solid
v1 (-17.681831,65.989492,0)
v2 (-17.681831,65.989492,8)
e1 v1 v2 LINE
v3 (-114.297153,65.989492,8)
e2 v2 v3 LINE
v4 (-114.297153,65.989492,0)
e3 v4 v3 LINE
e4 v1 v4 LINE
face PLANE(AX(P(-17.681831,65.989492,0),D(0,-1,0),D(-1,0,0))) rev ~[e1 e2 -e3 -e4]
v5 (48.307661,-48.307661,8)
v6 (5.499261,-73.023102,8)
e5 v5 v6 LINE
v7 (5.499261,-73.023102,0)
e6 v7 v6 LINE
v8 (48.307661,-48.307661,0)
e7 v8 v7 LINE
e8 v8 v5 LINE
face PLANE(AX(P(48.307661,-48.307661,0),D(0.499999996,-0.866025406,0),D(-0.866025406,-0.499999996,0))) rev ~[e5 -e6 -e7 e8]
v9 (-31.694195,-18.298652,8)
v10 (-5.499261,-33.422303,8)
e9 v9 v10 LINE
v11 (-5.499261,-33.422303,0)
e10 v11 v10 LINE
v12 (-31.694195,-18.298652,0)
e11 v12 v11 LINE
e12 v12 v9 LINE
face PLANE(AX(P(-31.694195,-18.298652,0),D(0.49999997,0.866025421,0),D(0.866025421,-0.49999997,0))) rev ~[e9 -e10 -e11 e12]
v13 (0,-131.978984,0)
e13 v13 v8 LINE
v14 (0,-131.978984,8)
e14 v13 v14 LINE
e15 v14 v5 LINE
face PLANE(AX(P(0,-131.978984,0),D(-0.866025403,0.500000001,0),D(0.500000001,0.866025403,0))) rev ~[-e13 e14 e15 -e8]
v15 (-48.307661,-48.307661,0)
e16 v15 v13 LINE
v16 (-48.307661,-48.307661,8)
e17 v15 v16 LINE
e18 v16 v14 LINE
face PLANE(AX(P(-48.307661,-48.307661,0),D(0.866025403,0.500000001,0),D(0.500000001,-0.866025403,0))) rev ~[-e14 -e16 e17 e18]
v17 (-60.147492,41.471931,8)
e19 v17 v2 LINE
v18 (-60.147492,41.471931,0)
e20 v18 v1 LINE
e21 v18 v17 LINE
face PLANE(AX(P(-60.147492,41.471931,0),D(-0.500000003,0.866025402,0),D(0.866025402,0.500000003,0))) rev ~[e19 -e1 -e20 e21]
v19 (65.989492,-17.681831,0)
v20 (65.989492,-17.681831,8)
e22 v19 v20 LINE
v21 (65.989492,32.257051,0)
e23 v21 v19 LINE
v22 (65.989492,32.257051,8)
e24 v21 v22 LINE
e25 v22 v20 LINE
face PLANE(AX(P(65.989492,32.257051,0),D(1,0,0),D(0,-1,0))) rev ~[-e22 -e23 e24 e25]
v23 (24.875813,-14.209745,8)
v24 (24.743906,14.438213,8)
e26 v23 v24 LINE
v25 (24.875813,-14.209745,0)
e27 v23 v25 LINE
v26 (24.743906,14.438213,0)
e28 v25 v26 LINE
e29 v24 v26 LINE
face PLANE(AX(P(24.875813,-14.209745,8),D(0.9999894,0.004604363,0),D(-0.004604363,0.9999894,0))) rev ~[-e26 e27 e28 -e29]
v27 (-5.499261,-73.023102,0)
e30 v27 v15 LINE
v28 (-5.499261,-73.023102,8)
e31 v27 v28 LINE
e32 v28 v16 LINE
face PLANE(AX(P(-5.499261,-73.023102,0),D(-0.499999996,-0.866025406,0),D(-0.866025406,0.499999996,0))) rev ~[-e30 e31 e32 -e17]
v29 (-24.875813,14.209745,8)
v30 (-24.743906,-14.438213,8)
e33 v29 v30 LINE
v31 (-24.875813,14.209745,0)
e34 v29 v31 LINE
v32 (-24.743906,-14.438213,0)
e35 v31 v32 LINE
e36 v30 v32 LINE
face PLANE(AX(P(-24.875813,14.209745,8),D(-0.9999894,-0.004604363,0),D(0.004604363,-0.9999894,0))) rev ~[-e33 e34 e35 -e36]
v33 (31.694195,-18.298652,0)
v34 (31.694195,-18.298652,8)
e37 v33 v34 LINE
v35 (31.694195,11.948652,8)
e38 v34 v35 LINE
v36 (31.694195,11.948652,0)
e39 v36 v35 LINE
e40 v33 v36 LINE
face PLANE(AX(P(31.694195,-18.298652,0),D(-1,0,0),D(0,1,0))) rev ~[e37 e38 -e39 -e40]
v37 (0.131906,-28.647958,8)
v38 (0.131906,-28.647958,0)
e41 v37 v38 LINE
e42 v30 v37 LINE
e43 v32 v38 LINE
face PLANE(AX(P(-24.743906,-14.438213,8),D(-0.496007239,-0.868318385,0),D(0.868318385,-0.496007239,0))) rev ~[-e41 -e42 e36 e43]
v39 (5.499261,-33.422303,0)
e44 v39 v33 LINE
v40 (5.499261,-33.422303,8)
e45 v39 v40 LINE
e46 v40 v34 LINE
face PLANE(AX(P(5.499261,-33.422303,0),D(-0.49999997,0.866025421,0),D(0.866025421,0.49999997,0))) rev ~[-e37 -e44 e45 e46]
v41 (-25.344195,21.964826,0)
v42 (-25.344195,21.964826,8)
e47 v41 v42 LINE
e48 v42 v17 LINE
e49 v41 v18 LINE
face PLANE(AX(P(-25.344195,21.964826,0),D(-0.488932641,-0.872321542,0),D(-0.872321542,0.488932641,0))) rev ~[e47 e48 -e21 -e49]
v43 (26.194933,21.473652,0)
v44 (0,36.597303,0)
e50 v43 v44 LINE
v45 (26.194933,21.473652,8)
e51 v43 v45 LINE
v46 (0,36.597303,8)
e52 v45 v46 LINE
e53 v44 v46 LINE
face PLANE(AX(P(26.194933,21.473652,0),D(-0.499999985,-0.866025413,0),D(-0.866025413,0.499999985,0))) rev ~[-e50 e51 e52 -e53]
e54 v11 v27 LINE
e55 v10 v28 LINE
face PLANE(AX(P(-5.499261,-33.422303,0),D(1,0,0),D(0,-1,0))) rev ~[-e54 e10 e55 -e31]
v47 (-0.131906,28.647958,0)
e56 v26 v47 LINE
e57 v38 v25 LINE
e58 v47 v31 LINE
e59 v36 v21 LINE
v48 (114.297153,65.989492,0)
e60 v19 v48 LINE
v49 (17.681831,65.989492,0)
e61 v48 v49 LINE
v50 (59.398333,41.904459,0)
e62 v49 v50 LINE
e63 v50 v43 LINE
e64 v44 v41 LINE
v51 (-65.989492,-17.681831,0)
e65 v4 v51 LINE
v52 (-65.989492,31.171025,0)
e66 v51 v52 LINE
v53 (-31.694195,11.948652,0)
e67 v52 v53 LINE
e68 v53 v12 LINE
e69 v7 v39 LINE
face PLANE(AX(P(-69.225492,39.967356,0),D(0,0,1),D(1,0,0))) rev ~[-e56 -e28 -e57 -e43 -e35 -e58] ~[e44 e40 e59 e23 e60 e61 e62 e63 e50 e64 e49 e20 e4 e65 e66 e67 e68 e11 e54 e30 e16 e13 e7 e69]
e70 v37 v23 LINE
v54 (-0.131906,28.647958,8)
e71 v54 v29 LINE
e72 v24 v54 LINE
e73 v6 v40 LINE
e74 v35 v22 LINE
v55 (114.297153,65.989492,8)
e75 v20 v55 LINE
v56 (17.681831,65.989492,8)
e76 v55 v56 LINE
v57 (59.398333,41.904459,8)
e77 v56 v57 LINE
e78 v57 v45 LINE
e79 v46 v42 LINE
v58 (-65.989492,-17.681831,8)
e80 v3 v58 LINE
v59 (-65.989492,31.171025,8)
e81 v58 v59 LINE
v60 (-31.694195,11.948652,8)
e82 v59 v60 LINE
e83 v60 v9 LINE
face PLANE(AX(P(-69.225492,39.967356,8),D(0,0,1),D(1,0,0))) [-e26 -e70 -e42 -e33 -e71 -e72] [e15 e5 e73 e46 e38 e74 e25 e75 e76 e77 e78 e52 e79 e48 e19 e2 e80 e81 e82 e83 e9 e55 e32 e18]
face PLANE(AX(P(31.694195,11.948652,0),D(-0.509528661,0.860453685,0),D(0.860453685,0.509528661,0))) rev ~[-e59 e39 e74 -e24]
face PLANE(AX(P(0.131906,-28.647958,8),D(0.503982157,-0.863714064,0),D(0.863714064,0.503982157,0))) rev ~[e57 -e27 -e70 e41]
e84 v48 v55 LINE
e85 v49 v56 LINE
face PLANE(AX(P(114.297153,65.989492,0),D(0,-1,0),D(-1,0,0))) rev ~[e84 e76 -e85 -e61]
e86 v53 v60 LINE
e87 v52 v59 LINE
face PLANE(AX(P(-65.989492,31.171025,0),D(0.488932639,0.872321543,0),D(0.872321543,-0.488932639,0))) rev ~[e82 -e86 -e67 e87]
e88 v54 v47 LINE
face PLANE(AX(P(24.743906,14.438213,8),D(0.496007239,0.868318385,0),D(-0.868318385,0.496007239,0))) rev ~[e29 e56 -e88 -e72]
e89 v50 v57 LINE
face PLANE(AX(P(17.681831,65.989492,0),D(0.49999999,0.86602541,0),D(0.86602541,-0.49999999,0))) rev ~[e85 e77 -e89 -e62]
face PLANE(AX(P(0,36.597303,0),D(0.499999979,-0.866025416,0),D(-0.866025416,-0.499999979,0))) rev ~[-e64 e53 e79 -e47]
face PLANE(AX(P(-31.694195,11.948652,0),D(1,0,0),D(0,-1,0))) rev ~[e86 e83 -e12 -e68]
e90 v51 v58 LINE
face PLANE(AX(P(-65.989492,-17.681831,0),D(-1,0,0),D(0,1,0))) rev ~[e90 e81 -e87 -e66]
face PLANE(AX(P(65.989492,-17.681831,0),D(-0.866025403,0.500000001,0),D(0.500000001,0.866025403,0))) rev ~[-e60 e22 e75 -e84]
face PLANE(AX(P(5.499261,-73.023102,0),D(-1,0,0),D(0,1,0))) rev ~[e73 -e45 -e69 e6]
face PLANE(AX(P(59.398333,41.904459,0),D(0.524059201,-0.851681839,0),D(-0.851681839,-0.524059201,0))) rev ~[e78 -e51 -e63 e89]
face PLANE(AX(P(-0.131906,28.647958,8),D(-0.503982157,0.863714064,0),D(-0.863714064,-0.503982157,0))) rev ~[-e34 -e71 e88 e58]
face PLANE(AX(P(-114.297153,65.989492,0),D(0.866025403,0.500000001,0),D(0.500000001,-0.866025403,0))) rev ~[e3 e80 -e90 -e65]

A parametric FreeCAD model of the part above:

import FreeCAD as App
import Part
import Sketcher
Q = App.Units.Quantity

doc = App.newDocument("Part")
params = doc.addObject("Spreadsheet::Sheet", "Params")
for row, (alias, value) in enumerate([
    ("pad1_length", "8 mm"),
    ("pocket1_length", "8 mm"),
], start=1):
    params.set(f"A{row}", alias)
    params.set(f"B{row}", "=" + value)
    params.setAlias(f"B{row}", alias)

body = doc.addObject("PartDesign::Body", "Body")

sketch1 = body.newObject("Sketcher::SketchObject", "Sketch")
sketch1.AttachmentSupport = (doc.getObject("XY_Plane"), [""])
sketch1.MapMode = "FlatFace"
sketch1.addGeometry([
    Part.LineSegment(App.Vector(-60, 41, 0), App.Vector(-18, 66, 0)),
    Part.LineSegment(App.Vector(-18, 66, 0), App.Vector(-114, 66, 0)),
    Part.LineSegment(App.Vector(-114, 66, 0), App.Vector(-66, -18, 0)),
    Part.LineSegment(App.Vector(-66, -18, 0), App.Vector(-66, 31, 0)),
    Part.LineSegment(App.Vector(-66, 31, 0), App.Vector(-32, 12, 0)),
    Part.LineSegment(App.Vector(-32, 12, 0), App.Vector(-32, -18, 0)),
    Part.LineSegment(App.Vector(-32, -18, 0), App.Vector(-5, -33, 0)),
    Part.LineSegment(App.Vector(-5, -33, 0), App.Vector(-5, -73, 0)),
    Part.LineSegment(App.Vector(-5, -73, 0), App.Vector(-48, -48, 0)),
    Part.LineSegment(App.Vector(-48, -48, 0), App.Vector(0, -132, 0)),
    Part.LineSegment(App.Vector(0, -132, 0), App.Vector(48, -48, 0)),
    Part.LineSegment(App.Vector(48, -48, 0), App.Vector(5, -73, 0)),
    Part.LineSegment(App.Vector(5, -73, 0), App.Vector(5, -33, 0)),
    Part.LineSegment(App.Vector(5, -33, 0), App.Vector(32, -18, 0)),
    Part.LineSegment(App.Vector(32, -18, 0), App.Vector(32, 12, 0)),
    Part.LineSegment(App.Vector(32, 12, 0), App.Vector(66, 32, 0)),
    Part.LineSegment(App.Vector(66, 32, 0), App.Vector(66, -18, 0)),
    Part.LineSegment(App.Vector(66, -18, 0), App.Vector(114, 66, 0)),
    Part.LineSegment(App.Vector(114, 66, 0), App.Vector(18, 66, 0)),
    Part.LineSegment(App.Vector(18, 66, 0), App.Vector(59, 42, 0)),
    Part.LineSegment(App.Vector(59, 42, 0), App.Vector(26, 21, 0)),
    Part.LineSegment(App.Vector(26, 21, 0), App.Vector(0, 37, 0)),
    Part.LineSegment(App.Vector(0, 37, 0), App.Vector(-25, 22, 0)),
    Part.LineSegment(App.Vector(-25, 22, 0), App.Vector(-60, 41, 0)),
], False)
sketch1.addConstraint([
    Sketcher.Constraint("Coincident", 0, 2, 1, 1),
    Sketcher.Constraint("Coincident", 1, 2, 2, 1),
    Sketcher.Constraint("Coincident", 2, 2, 3, 1),
    Sketcher.Constraint("Coincident", 3, 2, 4, 1),
    Sketcher.Constraint("Coincident", 4, 2, 5, 1),
    Sketcher.Constraint("Coincident", 5, 2, 6, 1),
    Sketcher.Constraint("Coincident", 6, 2, 7, 1),
    Sketcher.Constraint("Coincident", 7, 2, 8, 1),
    Sketcher.Constraint("Coincident", 8, 2, 9, 1),
    Sketcher.Constraint("Coincident", 9, 2, 10, 1),
    Sketcher.Constraint("Coincident", 10, 2, 11, 1),
    Sketcher.Constraint("Coincident", 11, 2, 12, 1),
    Sketcher.Constraint("Coincident", 12, 2, 13, 1),
    Sketcher.Constraint("Coincident", 13, 2, 14, 1),
    Sketcher.Constraint("Coincident", 14, 2, 15, 1),
    Sketcher.Constraint("Coincident", 15, 2, 16, 1),
    Sketcher.Constraint("Coincident", 16, 2, 17, 1),
    Sketcher.Constraint("Coincident", 17, 2, 18, 1),
    Sketcher.Constraint("Coincident", 18, 2, 19, 1),
    Sketcher.Constraint("Coincident", 19, 2, 20, 1),
    Sketcher.Constraint("Coincident", 20, 2, 21, 1),
    Sketcher.Constraint("Coincident", 21, 2, 22, 1),
    Sketcher.Constraint("Coincident", 22, 2, 23, 1),
    Sketcher.Constraint("Coincident", 23, 2, 0, 1),
    Sketcher.Constraint("Horizontal", 1),
    Sketcher.Constraint("Vertical", 3),
    Sketcher.Constraint("Vertical", 5),
    Sketcher.Constraint("Vertical", 7),
    Sketcher.Constraint("Vertical", 12),
    Sketcher.Constraint("Vertical", 14),
    Sketcher.Constraint("Vertical", 16),
    Sketcher.Constraint("Horizontal", 18),
    Sketcher.Constraint("Symmetric", 8, 2, 10, 2, -2),
    Sketcher.Constraint("Symmetric", 7, 2, 11, 2, -2),
    Sketcher.Constraint("Symmetric", 5, 2, 13, 2, -2),
    Sketcher.Constraint("Symmetric", 2, 2, 16, 2, -2),
    Sketcher.Constraint("Symmetric", 1, 2, 17, 2, -2),
    Sketcher.Constraint("PointOnObject", 9, 2, -2),
    Sketcher.Constraint("PointOnObject", 21, 2, -2),
    Sketcher.Constraint("Perpendicular", 0, 2),
    Sketcher.Constraint("Parallel", 6, 8),
    Sketcher.Constraint("Parallel", 2, 9),
    Sketcher.Constraint("Perpendicular", 8, 10),
    Sketcher.Constraint("Parallel", 11, 13),
    Sketcher.Constraint("Perpendicular", 17, 19),
    Sketcher.Constraint("Parallel", 19, 21),
    Sketcher.Constraint("Parallel", 13, 22),
    Sketcher.Constraint("Parallel", 4, 23),
    Sketcher.Constraint("Horizontal", 4, 2, 14, 2),
    Sketcher.Constraint("Equal", 1, 18),
    Sketcher.Constraint("Equal", 2, 9),
    Sketcher.Constraint("Equal", 13, 21),
    Sketcher.Constraint("Angle", 0, Q("30 deg")),
    Sketcher.Constraint("DistanceX", 4, 2, 22, 2, Q("6.35 mm")),
    Sketcher.Constraint("DistanceY", 7, 2, 7, 1, Q("39.600799 mm")),
    Sketcher.Constraint("DistanceY", 14, 2, 20, 2, Q("9.525 mm")),
    Sketcher.Constraint("DistanceX", 3, 2, 23, 2, Q("5.842 mm")),
    Sketcher.Constraint("DistanceX", 1, 2, 1, 1, Q("96.615322 mm")),
    Sketcher.Constraint("DistanceY", 16, 2, 16, 1, Q("49.938882 mm")),
    Sketcher.Constraint("DistanceY", 7, 2, -1, 1, Q("73.023102 mm")),
    Sketcher.Constraint("DistanceX", 8, 2, 6, 2, Q("42.8084 mm")),
    Sketcher.Constraint("DistanceY", 14, 2, 15, 2, Q("20.308399 mm")),
    Sketcher.Constraint("DistanceX", 20, 2, 19, 2, Q("33.2034 mm")),
    Sketcher.Constraint("DistanceY", 22, 2, 3, 2, Q("9.206199 mm")),
    Sketcher.Constraint("Distance", 4, Q("39.314972 mm")),
    Sketcher.Constraint("DistanceY", 5, 2, 5, 1, Q("30.247304 mm")),
    Sketcher.Constraint("DistanceX", 0, 2, -1, 1, Q("17.681831 mm")),
])
pad1 = body.newObject("PartDesign::Pad", "Pad")
pad1.Profile = sketch1
pad1.setExpression("Length", "Params.pad1_length")

sketch2 = body.newObject("Sketcher::SketchObject", "Sketch001")
sketch2.AttachmentSupport = (doc.getObject("XY_Plane"), [""])
sketch2.MapMode = "FlatFace"
sketch2.AttachmentOffset = App.Placement(App.Vector(0, 0, 8), App.Rotation())
sketch2.addGeometry([
    Part.LineSegment(App.Vector(25, 14, 0), App.Vector(0, 29, 0)),
    Part.LineSegment(App.Vector(0, 29, 0), App.Vector(-25, 14, 0)),
    Part.LineSegment(App.Vector(-25, 14, 0), App.Vector(-25, -14, 0)),
    Part.LineSegment(App.Vector(-25, -14, 0), App.Vector(0, -29, 0)),
    Part.LineSegment(App.Vector(0, -29, 0), App.Vector(25, -14, 0)),
    Part.LineSegment(App.Vector(25, -14, 0), App.Vector(25, 14, 0)),
], False)
sketch2.addConstraint([
    Sketcher.Constraint("Coincident", 0, 2, 1, 1),
    Sketcher.Constraint("Coincident", 1, 2, 2, 1),
    Sketcher.Constraint("Coincident", 2, 2, 3, 1),
    Sketcher.Constraint("Coincident", 3, 2, 4, 1),
    Sketcher.Constraint("Coincident", 4, 2, 5, 1),
    Sketcher.Constraint("Coincident", 5, 2, 0, 1),
    Sketcher.Constraint("Symmetric", 0, 2, 3, 2, -1, 1),
    Sketcher.Constraint("Symmetric", 1, 2, 4, 2, -1, 1),
    Sketcher.Constraint("Symmetric", 2, 2, 5, 2, -1, 1),
    Sketcher.Constraint("Equal", 0, 1),
    Sketcher.Constraint("Equal", 1, 2),
    Sketcher.Constraint("DistanceX", 2, 2, 0, 2, Q("24.612 mm")),
    Sketcher.Constraint("Distance", 0, Q("28.648261 mm")),
    Sketcher.Constraint("DistanceY", 2, 2, 0, 2, Q("43.086171 mm")),
    Sketcher.Constraint("DistanceX", 2, 2, 3, 2, Q("24.875812 mm")),
])
pocket1 = body.newObject("PartDesign::Pocket", "Pocket")
pocket1.Profile = sketch2
pocket1.setExpression("Length", "Params.pocket1_length")

doc.recompute()
